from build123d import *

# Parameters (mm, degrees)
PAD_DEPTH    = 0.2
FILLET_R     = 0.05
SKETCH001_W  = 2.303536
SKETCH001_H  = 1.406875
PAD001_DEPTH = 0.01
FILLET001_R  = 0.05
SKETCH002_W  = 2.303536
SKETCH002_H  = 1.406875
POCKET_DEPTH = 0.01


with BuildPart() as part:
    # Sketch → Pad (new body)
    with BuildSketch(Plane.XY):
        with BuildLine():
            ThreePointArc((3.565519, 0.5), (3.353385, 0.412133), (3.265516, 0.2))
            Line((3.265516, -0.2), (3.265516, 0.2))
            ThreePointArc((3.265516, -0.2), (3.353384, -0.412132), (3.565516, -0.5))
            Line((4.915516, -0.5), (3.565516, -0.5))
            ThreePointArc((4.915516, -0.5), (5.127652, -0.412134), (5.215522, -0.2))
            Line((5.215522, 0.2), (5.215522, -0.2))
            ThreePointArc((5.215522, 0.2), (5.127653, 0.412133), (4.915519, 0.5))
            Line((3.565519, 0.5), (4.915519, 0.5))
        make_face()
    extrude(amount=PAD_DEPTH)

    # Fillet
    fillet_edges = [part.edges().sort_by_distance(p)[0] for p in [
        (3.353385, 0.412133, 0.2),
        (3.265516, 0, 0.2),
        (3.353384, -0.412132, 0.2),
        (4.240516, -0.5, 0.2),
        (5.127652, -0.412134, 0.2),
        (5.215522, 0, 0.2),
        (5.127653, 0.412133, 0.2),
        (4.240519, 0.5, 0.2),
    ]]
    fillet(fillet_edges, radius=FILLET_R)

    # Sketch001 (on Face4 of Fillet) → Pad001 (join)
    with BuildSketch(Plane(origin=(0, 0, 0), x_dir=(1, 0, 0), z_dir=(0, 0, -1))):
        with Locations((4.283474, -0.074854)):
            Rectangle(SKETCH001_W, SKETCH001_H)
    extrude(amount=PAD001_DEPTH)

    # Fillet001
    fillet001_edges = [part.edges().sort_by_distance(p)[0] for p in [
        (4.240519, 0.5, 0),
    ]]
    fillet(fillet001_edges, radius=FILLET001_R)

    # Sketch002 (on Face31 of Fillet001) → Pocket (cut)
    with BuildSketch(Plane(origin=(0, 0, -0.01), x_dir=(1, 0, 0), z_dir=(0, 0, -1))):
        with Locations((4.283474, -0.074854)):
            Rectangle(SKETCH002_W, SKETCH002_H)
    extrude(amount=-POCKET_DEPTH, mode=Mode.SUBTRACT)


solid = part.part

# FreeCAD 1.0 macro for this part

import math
import FreeCAD as App
import Part
import Sketcher

V = App.Vector
Q = App.Units.Quantity


def edges_at(feature, points):
    """Names of the edges that pass closest to the given points."""
    edges = feature.Shape.Edges
    near = lambda p: min(range(len(edges)), key=lambda i: edges[i].distToShape(Part.Vertex(*p))[0])
    return sorted({f"Edge{near(p) + 1}" for p in points})

doc = App.newDocument("Part")
body = doc.addObject("PartDesign::Body", "Body")

sketch1 = body.newObject("Sketcher::SketchObject", "Sketch")
sketch1.AttachmentSupport = (doc.getObject("XY_Plane"), [""])
sketch1.MapMode = "FlatFace"
sketch1.addGeometry([
    Part.ArcOfCircle(Part.Circle(V(3.57, 0.2, 0), V(0, 0, 1), 0.3), math.radians(90), math.radians(180)),
    Part.LineSegment(V(3.27, 0.2, 0), V(3.27, -0.2, 0)),
    Part.ArcOfCircle(Part.Circle(V(3.57, -0.2, 0), V(0, 0, 1), 0.3), math.radians(-180), math.radians(-90)),
    Part.LineSegment(V(3.57, -0.5, 0), V(4.92, -0.5, 0)),
    Part.ArcOfCircle(Part.Circle(V(4.92, -0.2, 0), V(0, 0, 1), 0.3), math.radians(-90), math.radians(0)),
    Part.LineSegment(V(5.22, -0.2, 0), V(5.22, 0.2, 0)),
    Part.ArcOfCircle(Part.Circle(V(4.92, 0.2, 0), V(0, 0, 1), 0.3), math.radians(0), math.radians(90)),
    Part.LineSegment(V(4.92, 0.5, 0), V(3.57, 0.5, 0)),
], False)
sketch1.addConstraint([
    Sketcher.Constraint("Tangent", 0, 2, 1, 1),
    Sketcher.Constraint("Tangent", 1, 2, 2, 1),
    Sketcher.Constraint("Tangent", 2, 2, 3, 1),
    Sketcher.Constraint("Coincident", 3, 2, 4, 1),
    Sketcher.Constraint("Tangent", 4, 2, 5, 1),
    Sketcher.Constraint("Tangent", 5, 2, 6, 1),
    Sketcher.Constraint("Coincident", 6, 2, 7, 1),
    Sketcher.Constraint("Coincident", 7, 2, 0, 1),
    Sketcher.Constraint("Vertical", 1),
    Sketcher.Constraint("Horizontal", 3),
    Sketcher.Constraint("Vertical", 5),
    Sketcher.Constraint("Horizontal", 7),
    Sketcher.Constraint("Equal", 0, 2),
    Sketcher.Constraint("Equal", 2, 4),
    Sketcher.Constraint("Equal", 4, 6),
    Sketcher.Constraint("Symmetric", 3, 2, 6, 2, -1),
    Sketcher.Constraint("Equal", 3, 7),
    Sketcher.Constraint("Radius", 0, Q("0.3 mm")),
    Sketcher.Constraint("DistanceY", 1, 2, 1, 1, Q("0.4 mm")),
    Sketcher.Constraint("DistanceX", 3, 1, 3, 2, Q("1.35 mm")),
    Sketcher.Constraint("DistanceX", -1, 1, 4, 3, Q("4.915522 mm")),
    Sketcher.Constraint("DistanceX", -1, 1, 6, 2, Q("4.915519 mm")),
])
pad1 = body.newObject("PartDesign::Pad", "Pad")
pad1.Profile = sketch1
pad1.Length = 0.2
doc.recompute()

fillet = body.newObject("PartDesign::Fillet", "Fillet")
fillet.Base = (pad1, edges_at(pad1, [
    (3.353, 0.412, 0.2),
    (3.266, 0, 0.2),
    (3.353, -0.412, 0.2),
    (4.241, -0.5, 0.2),
    (5.128, -0.412, 0.2),
    (5.216, 0, 0.2),
    (5.128, 0.412, 0.2),
    (4.241, 0.5, 0.2),
]))
fillet.Radius = 0.05

sketch2 = body.newObject("Sketcher::SketchObject", "Sketch001")
sketch2.AttachmentSupport = (doc.getObject("XY_Plane"), [""])
sketch2.MapMode = "FlatFace"
sketch2.addGeometry([
    Part.LineSegment(V(3.1, -0.6, 0), V(3.1, 0.8, 0)),
    Part.LineSegment(V(3.1, 0.8, 0), V(5.4, 0.8, 0)),
    Part.LineSegment(V(5.4, 0.8, 0), V(5.4, -0.6, 0)),
    Part.LineSegment(V(5.4, -0.6, 0), V(3.1, -0.6, 0)),
], False)
sketch2.addConstraint([
    Sketcher.Constraint("Coincident", 0, 2, 1, 1),
    Sketcher.Constraint("Coincident", 1, 2, 2, 1),
    Sketcher.Constraint("Coincident", 2, 2, 3, 1),
    Sketcher.Constraint("Coincident", 3, 2, 0, 1),
    Sketcher.Constraint("Vertical", 0),
    Sketcher.Constraint("Horizontal", 1),
    Sketcher.Constraint("Vertical", 2),
    Sketcher.Constraint("Horizontal", 3),
    Sketcher.Constraint("DistanceX", 1, 1, 1, 2, Q("2.303536 mm")),
    Sketcher.Constraint("DistanceY", 0, 1, 0, 2, Q("1.406875 mm")),
    Sketcher.Constraint("DistanceY", -1, 1, 0, 2, Q("0.778292 mm")),
    Sketcher.Constraint("DistanceX", -1, 1, 1, 2, Q("5.435242 mm")),
])
pad2 = body.newObject("PartDesign::Pad", "Pad001")
pad2.Profile = sketch2
pad2.Length = 0.01
pad2.Reversed = True
doc.recompute()

fillet2 = body.newObject("PartDesign::Fillet", "Fillet001")
fillet2.Base = (pad2, edges_at(pad2, [(4.241, 0.5, 0)]))
fillet2.Radius = 0.05

sketch3 = body.newObject("Sketcher::SketchObject", "Sketch002")
sketch3.AttachmentSupport = (doc.getObject("XY_Plane"), [""])
sketch3.MapMode = "FlatFace"
sketch3.AttachmentOffset = App.Placement(V(0, 0, -0.01), App.Rotation())
sketch3.addGeometry([
    Part.LineSegment(V(3.1, -0.6, 0), V(3.1, 0.8, 0)),
    Part.LineSegment(V(3.1, 0.8, 0), V(5.4, 0.8, 0)),
    Part.LineSegment(V(5.4, 0.8, 0), V(5.4, -0.6, 0)),
    Part.LineSegment(V(5.4, -0.6, 0), V(3.1, -0.6, 0)),
], False)
sketch3.addConstraint([
    Sketcher.Constraint("Coincident", 0, 2, 1, 1),
    Sketcher.Constraint("Coincident", 1, 2, 2, 1),
    Sketcher.Constraint("Coincident", 2, 2, 3, 1),
    Sketcher.Constraint("Coincident", 3, 2, 0, 1),
    Sketcher.Constraint("Vertical", 0),
    Sketcher.Constraint("Horizontal", 1),
    Sketcher.Constraint("Vertical", 2),
    Sketcher.Constraint("Horizontal", 3),
    Sketcher.Constraint("DistanceX", 1, 1, 1, 2, Q("2.303536 mm")),
    Sketcher.Constraint("DistanceY", 0, 1, 0, 2, Q("1.406875 mm")),
    Sketcher.Constraint("DistanceY", -1, 1, 0, 2, Q("0.778292 mm")),
    Sketcher.Constraint("DistanceX", -1, 1, 1, 2, Q("5.435242 mm")),
])
pocket1 = body.newObject("PartDesign::Pocket", "Pocket")
pocket1.Profile = sketch3
pocket1.Length = 0.01
pocket1.Reversed = True

doc.recompute()
